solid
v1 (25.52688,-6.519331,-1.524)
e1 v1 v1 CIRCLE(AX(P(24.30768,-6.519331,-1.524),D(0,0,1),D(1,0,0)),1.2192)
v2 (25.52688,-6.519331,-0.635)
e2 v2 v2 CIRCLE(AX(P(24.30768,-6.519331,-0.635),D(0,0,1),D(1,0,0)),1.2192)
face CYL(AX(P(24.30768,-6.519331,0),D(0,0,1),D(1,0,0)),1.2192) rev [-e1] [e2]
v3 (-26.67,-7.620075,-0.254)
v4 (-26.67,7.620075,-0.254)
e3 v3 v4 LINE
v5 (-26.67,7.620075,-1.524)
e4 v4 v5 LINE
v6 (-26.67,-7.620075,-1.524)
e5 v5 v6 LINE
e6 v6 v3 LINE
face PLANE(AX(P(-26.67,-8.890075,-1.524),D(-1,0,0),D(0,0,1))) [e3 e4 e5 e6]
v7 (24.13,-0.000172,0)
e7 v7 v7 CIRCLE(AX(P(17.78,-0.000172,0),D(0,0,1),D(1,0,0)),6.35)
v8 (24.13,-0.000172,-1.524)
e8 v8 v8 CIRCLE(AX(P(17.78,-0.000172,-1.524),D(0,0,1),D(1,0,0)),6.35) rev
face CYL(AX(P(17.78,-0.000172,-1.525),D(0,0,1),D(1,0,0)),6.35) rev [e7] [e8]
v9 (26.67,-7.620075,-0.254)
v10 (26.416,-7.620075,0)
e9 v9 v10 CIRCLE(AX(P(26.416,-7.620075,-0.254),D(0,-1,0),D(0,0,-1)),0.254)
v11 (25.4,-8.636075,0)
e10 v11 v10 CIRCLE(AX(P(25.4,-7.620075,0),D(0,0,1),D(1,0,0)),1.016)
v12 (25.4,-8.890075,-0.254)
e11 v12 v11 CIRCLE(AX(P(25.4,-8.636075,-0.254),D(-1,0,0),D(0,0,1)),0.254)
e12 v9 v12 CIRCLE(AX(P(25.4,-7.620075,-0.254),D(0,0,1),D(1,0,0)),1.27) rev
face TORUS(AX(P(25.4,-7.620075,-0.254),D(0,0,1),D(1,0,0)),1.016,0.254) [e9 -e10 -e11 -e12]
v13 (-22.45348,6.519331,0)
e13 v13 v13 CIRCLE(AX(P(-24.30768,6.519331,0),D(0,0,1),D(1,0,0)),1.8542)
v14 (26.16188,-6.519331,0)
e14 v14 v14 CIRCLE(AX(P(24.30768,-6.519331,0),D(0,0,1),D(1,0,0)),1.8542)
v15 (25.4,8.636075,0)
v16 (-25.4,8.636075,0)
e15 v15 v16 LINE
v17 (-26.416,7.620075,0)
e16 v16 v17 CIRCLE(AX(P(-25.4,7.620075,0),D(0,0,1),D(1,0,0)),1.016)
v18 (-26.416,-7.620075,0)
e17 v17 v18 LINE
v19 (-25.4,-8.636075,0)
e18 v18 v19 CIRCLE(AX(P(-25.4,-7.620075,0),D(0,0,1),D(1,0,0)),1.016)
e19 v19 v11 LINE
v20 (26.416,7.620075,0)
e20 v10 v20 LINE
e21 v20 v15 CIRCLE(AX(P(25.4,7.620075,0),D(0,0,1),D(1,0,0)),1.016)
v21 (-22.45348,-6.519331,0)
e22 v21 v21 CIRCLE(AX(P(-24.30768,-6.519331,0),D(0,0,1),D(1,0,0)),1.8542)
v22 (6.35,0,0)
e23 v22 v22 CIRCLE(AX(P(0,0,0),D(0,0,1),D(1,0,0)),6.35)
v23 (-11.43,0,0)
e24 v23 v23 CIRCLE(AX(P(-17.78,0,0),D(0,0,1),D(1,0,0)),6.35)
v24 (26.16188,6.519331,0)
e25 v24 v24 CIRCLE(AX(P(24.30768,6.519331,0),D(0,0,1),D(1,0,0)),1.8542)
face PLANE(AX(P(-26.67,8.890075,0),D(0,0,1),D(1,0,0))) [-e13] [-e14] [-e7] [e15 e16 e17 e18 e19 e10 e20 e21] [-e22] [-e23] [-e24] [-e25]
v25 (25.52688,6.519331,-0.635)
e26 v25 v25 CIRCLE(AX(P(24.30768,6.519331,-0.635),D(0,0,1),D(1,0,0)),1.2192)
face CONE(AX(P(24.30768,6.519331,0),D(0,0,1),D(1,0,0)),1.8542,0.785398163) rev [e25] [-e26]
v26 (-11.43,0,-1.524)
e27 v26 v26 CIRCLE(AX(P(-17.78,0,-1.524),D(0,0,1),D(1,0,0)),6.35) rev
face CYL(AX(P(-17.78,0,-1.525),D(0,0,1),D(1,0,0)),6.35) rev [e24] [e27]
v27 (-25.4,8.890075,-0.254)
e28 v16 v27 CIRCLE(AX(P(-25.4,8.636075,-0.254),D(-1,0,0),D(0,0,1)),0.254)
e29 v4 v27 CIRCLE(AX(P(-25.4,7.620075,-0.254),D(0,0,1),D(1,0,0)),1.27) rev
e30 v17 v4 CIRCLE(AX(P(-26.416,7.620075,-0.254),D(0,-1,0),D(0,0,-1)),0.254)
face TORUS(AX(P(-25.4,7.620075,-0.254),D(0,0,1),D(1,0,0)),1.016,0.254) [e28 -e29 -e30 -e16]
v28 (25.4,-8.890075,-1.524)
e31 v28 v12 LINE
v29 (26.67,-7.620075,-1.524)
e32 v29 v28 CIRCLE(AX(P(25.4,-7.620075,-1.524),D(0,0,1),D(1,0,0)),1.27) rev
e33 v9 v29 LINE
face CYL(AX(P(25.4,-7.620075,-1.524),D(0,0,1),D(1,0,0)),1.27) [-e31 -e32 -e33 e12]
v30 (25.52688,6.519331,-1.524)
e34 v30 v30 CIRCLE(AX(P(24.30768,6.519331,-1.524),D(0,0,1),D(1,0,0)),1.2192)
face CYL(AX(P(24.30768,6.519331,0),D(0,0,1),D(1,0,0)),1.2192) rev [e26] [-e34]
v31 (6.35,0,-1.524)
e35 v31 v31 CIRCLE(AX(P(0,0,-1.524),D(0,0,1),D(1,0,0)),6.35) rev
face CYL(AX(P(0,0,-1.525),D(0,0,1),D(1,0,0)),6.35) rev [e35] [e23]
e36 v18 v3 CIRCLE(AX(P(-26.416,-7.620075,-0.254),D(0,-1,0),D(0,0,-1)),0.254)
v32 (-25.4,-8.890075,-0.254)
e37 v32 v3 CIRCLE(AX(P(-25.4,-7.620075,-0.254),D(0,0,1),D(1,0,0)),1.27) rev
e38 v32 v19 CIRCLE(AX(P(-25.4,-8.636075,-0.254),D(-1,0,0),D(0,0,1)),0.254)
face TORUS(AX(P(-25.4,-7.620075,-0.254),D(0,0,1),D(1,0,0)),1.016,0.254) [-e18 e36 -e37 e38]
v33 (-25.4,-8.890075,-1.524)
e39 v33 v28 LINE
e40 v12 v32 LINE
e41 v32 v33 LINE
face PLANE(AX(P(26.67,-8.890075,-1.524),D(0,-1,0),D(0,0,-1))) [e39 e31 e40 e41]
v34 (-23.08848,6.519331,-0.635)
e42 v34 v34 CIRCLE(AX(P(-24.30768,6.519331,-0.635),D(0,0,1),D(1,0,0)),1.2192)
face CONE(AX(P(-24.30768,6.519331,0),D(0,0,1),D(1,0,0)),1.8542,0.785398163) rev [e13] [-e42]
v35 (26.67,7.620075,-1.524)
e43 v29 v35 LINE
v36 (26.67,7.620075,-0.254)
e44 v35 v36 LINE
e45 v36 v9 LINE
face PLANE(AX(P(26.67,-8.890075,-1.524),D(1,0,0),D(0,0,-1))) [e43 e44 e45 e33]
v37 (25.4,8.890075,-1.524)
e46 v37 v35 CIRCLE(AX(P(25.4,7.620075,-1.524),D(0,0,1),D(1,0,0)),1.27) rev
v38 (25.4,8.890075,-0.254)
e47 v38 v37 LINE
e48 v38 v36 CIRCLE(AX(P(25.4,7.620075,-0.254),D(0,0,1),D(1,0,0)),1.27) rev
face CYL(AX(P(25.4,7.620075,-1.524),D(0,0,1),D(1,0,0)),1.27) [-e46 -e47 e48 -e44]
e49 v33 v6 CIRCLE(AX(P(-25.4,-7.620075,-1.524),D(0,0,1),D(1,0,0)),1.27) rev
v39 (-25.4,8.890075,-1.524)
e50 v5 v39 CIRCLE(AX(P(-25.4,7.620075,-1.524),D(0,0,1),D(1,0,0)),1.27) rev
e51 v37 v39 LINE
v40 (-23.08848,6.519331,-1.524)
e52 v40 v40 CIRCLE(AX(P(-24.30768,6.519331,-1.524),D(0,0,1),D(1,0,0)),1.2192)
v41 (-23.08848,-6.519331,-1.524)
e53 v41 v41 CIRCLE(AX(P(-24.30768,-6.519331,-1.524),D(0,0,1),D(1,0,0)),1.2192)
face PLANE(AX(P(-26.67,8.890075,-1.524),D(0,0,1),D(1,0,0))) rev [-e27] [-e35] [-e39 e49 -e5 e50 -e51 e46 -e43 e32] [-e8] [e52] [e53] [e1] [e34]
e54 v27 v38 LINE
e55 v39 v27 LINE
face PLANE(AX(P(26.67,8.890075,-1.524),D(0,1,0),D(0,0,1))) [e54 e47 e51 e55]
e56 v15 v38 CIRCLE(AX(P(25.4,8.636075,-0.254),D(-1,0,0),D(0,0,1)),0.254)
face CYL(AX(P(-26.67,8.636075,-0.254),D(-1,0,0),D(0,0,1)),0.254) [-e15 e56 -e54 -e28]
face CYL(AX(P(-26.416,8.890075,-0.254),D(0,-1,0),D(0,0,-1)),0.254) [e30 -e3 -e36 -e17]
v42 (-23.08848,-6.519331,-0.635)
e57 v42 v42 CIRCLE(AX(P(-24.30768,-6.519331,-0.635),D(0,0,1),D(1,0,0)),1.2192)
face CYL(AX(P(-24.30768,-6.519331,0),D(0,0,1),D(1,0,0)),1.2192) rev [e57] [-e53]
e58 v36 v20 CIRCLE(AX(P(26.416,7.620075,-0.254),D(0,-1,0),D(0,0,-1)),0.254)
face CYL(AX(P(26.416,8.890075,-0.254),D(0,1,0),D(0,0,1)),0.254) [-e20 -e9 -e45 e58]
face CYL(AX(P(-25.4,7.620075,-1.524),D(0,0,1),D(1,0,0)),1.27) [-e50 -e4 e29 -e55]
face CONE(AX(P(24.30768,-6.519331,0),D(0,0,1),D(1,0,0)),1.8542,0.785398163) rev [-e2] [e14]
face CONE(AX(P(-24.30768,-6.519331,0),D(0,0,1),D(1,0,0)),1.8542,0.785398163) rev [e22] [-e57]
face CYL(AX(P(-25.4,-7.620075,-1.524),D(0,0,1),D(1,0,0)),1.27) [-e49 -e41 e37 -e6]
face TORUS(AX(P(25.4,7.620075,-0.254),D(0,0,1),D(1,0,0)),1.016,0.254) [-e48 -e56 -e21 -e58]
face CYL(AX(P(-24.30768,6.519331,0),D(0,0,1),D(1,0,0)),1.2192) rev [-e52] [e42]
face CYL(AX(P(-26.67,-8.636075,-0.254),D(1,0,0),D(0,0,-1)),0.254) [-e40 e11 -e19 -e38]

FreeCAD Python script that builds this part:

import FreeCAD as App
import Part
import Sketcher
Q = App.Units.Quantity


def edges_at(feature, points):
    """Names of the edges that pass closest to the given points."""
    edges = feature.Shape.Edges
    near = lambda p: min(range(len(edges)), key=lambda i: edges[i].distToShape(Part.Vertex(*p))[0])
    return sorted({f"Edge{near(p) + 1}" for p in points})


def add_polygon(sketch, points):
    """Adds a closed chain of lines whose ends are joined by coincident constraints."""
    first, n = sketch.GeometryCount, len(points)
    for a, b in zip(points, points[1:] + points[:1]):
        sketch.addGeometry(Part.LineSegment(App.Vector(*a, 0), App.Vector(*b, 0)), False)
    for i in range(n):
        sketch.addConstraint(Sketcher.Constraint("Coincident", first + i, 2, first + (i + 1) % n, 1))

doc = App.newDocument("Part")
params = doc.addObject("Spreadsheet::Sheet", "Params")
for row, (alias, value) in enumerate([
    ("sketch1_width", "2.1 in"),
    ("pad1_length", "0.06 in"),
    ("sketch2_height", "0.06 in"),
    ("sketch2_width", "0.073 in"),
    ("sketch2_width2", "0.048 in"),
    ("groove_angle", "360 deg"),
    ("linearpattern_pitch", "13.038661 mm"),
    ("linearpattern2_pitch", "50.333487 mm"),
    ("linearpattern3_pitch", "48.61536 mm"),
    ("fillet_radius", "0.05 in"),
    ("sketch3_diameter", "0.5 in"),
    ("sketch4_diameter", "0.5 in"),
    ("sketch5_diameter", "0.5 in"),
    ("fillet2_radius", "0.01 in"),
], start=1):
    params.set(f"A{row}", alias)
    params.set(f"B{row}", "=" + value)
    params.setAlias(f"B{row}", alias)

body = doc.addObject("PartDesign::Body", "Body")

sketch1 = body.newObject("Sketcher::SketchObject", "Sketch")
sketch1.AttachmentSupport = (doc.getObject("XY_Plane"), [""])
sketch1.MapMode = "FlatFace"
add_polygon(sketch1, [(-27, 9), (-27, -9), (27, -9), (27, 9)])
sketch1.addConstraint([
    Sketcher.Constraint("Vertical", 0),
    Sketcher.Constraint("Horizontal", 1),
    Sketcher.Constraint("Vertical", 2),
    Sketcher.Constraint("Horizontal", 3),
    Sketcher.Constraint("Symmetric", 0, 2, 2, 2, -1, 1),
    Sketcher.Constraint("DistanceX", 1, 1, 1, 2, Q("2.1 in")),
    Sketcher.Constraint("DistanceY", 0, 2, 0, 1, 17.78015),
])
sketch1.setExpression("Constraints[9]", "Params.sketch1_width")
pad1 = body.newObject("PartDesign::Pad", "Pad")
pad1.Profile = sketch1
pad1.setExpression("Length", "Params.pad1_length")
pad1.Reversed = True

sketch2 = body.newObject("Sketcher::SketchObject", "Sketch001")
sketch2.AttachmentSupport = (doc.getObject("YZ_Plane"), [""])
sketch2.MapMode = "FlatFace"
sketch2.AttachmentOffset = App.Placement(App.Vector(0, 0, -24.30768), App.Rotation())
add_polygon(sketch2, [(6.5, -1.5), (6.5, 0), (4.7, 0), (5.3, -0.6), (5.3, -1.5)])
sketch2.addGeometry(Part.LineSegment(App.Vector(6.5, 0, 0), App.Vector(6.5, -1.5, 0)), True)
sketch2.addConstraint([
    Sketcher.Constraint("Vertical", 0),
    Sketcher.Constraint("Horizontal", 1),
    Sketcher.Constraint("Vertical", 3),
    Sketcher.Constraint("Horizontal", 4),
    Sketcher.Constraint("Vertical", 5),
    Sketcher.Constraint("Coincident", 5, 1, 0, 2),
    Sketcher.Constraint("PointOnObject", 0, 2, -1),
    Sketcher.Constraint("Horizontal", 3, 2, 5, 2),
    Sketcher.Constraint("Angle", 2, Q("-45 deg")),
    Sketcher.Constraint("DistanceY", 0, 1, 0, 2, Q("0.06 in")),
    Sketcher.Constraint("DistanceX", 1, 2, 1, 1, Q("0.073 in")),
    Sketcher.Constraint("DistanceX", 4, 1, 4, 2, Q("0.048 in")),
    Sketcher.Constraint("DistanceX", -1, 1, 0, 2, 6.519331),
])
sketch2.setExpression("Constraints[14]", "Params.sketch2_height")
sketch2.setExpression("Constraints[15]", "Params.sketch2_width")
sketch2.setExpression("Constraints[16]", "Params.sketch2_width2")
groove = body.newObject("PartDesign::Groove", "Groove")
groove.Profile = sketch2
groove.ReferenceAxis = (sketch2, ["Axis0"])
groove.setExpression("Angle", "Params.groove_angle")
doc.recompute()

linearpattern = body.newObject("PartDesign::LinearPattern", "LinearPattern")
linearpattern.Originals = [groove]
linearpattern.Direction = (doc.getObject("Y_Axis"), [""])
linearpattern.Mode = "offset"
linearpattern.setExpression("Offset", "Params.linearpattern_pitch")
linearpattern.Occurrences = 2
linearpattern.Reversed = True
body.Tip = linearpattern
doc.recompute()

datumline = body.newObject("PartDesign::Line", "DatumLine")
datumline.Placement = App.Placement(App.Vector(0, 0, 0), App.Rotation(App.Vector(0, 0, 1), App.Vector(0.965865129, -0.259045466, 0)))
linearpattern2 = body.newObject("PartDesign::LinearPattern", "LinearPattern001")
linearpattern2.Originals = [groove]
linearpattern2.Direction = (datumline, [""])
linearpattern2.Mode = "offset"
linearpattern2.setExpression("Offset", "Params.linearpattern2_pitch")
linearpattern2.Occurrences = 2
body.Tip = linearpattern2
doc.recompute()

linearpattern3 = body.newObject("PartDesign::LinearPattern", "LinearPattern002")
linearpattern3.Originals = [groove]
linearpattern3.Direction = (doc.getObject("X_Axis"), [""])
linearpattern3.Mode = "offset"
linearpattern3.setExpression("Offset", "Params.linearpattern3_pitch")
linearpattern3.Occurrences = 2
body.Tip = linearpattern3
doc.recompute()

fillet = body.newObject("PartDesign::Fillet", "Fillet")
fillet.Base = (linearpattern3, edges_at(linearpattern3, [
    (-26.67, 8.89, -0.762),
    (26.67, 8.89, -0.762),
    (26.67, -8.89, -0.762),
    (-26.67, -8.89, -0.762),
]))
fillet.setExpression("Radius", "Params.fillet_radius")

sketch3 = body.newObject("Sketcher::SketchObject", "Sketch002")
sketch3.AttachmentSupport = (doc.getObject("XY_Plane"), [""])
sketch3.MapMode = "FlatFace"
sketch3.addGeometry(Part.Circle(App.Vector(0, 0, 0), App.Vector(0, 0, 1), 6), False)
sketch3.addConstraint([
    Sketcher.Constraint("Coincident", 0, 3, -1, 1),
    Sketcher.Constraint("Diameter", 0, Q("0.5 in")),
])
sketch3.setExpression("Constraints[1]", "Params.sketch3_diameter")
pocket1 = body.newObject("PartDesign::Pocket", "Pocket")
pocket1.Profile = sketch3
pocket1.Type = "UpToFirst"

sketch4 = body.newObject("Sketcher::SketchObject", "Sketch003")
sketch4.AttachmentSupport = (doc.getObject("XY_Plane"), [""])
sketch4.MapMode = "FlatFace"
sketch4.addGeometry(Part.Circle(App.Vector(-18, 0, 0), App.Vector(0, 0, 1), 6), False)
sketch4.addConstraint([
    Sketcher.Constraint("PointOnObject", 0, 3, -1),
    Sketcher.Constraint("Diameter", 0, Q("0.5 in")),
    Sketcher.Constraint("DistanceX", 0, 3, -1, 1, Q("0.7 in")),
])
sketch4.setExpression("Constraints[1]", "Params.sketch4_diameter")
pocket2 = body.newObject("PartDesign::Pocket", "Pocket001")
pocket2.Profile = sketch4
pocket2.Type = "UpToFirst"

sketch5 = body.newObject("Sketcher::SketchObject", "Sketch004")
sketch5.AttachmentSupport = (doc.getObject("XY_Plane"), [""])
sketch5.MapMode = "FlatFace"
sketch5.addGeometry(Part.Circle(App.Vector(18, 0, 0), App.Vector(0, 0, 1), 6), False)
sketch5.addConstraint([
    Sketcher.Constraint("Diameter", 0, Q("0.5 in")),
    Sketcher.Constraint("DistanceX", -1, 1, 0, 3, Q("0.7 in")),
    Sketcher.Constraint("DistanceY", 0, 3, -1, 1, 0.000172),
])
sketch5.setExpression("Constraints[0]", "Params.sketch5_diameter")
pocket3 = body.newObject("PartDesign::Pocket", "Pocket002")
pocket3.Profile = sketch5
pocket3.Type = "UpToFirst"
doc.recompute()

fillet2 = body.newObject("PartDesign::Fillet", "Fillet001")
fillet2.Base = (pocket3, edges_at(pocket3, [
    (0, 8.89, 0),
    (-26.67, 0, 0),
    (0, -8.89, 0),
    (26.67, 0, 0),
    (-26.298, -8.518, 0),
    (26.298, -8.518, 0),
    (26.298, 8.518, 0),
    (-26.298, 8.518, 0),
]))
fillet2.setExpression("Radius", "Params.fillet2_radius")

doc.recompute()
